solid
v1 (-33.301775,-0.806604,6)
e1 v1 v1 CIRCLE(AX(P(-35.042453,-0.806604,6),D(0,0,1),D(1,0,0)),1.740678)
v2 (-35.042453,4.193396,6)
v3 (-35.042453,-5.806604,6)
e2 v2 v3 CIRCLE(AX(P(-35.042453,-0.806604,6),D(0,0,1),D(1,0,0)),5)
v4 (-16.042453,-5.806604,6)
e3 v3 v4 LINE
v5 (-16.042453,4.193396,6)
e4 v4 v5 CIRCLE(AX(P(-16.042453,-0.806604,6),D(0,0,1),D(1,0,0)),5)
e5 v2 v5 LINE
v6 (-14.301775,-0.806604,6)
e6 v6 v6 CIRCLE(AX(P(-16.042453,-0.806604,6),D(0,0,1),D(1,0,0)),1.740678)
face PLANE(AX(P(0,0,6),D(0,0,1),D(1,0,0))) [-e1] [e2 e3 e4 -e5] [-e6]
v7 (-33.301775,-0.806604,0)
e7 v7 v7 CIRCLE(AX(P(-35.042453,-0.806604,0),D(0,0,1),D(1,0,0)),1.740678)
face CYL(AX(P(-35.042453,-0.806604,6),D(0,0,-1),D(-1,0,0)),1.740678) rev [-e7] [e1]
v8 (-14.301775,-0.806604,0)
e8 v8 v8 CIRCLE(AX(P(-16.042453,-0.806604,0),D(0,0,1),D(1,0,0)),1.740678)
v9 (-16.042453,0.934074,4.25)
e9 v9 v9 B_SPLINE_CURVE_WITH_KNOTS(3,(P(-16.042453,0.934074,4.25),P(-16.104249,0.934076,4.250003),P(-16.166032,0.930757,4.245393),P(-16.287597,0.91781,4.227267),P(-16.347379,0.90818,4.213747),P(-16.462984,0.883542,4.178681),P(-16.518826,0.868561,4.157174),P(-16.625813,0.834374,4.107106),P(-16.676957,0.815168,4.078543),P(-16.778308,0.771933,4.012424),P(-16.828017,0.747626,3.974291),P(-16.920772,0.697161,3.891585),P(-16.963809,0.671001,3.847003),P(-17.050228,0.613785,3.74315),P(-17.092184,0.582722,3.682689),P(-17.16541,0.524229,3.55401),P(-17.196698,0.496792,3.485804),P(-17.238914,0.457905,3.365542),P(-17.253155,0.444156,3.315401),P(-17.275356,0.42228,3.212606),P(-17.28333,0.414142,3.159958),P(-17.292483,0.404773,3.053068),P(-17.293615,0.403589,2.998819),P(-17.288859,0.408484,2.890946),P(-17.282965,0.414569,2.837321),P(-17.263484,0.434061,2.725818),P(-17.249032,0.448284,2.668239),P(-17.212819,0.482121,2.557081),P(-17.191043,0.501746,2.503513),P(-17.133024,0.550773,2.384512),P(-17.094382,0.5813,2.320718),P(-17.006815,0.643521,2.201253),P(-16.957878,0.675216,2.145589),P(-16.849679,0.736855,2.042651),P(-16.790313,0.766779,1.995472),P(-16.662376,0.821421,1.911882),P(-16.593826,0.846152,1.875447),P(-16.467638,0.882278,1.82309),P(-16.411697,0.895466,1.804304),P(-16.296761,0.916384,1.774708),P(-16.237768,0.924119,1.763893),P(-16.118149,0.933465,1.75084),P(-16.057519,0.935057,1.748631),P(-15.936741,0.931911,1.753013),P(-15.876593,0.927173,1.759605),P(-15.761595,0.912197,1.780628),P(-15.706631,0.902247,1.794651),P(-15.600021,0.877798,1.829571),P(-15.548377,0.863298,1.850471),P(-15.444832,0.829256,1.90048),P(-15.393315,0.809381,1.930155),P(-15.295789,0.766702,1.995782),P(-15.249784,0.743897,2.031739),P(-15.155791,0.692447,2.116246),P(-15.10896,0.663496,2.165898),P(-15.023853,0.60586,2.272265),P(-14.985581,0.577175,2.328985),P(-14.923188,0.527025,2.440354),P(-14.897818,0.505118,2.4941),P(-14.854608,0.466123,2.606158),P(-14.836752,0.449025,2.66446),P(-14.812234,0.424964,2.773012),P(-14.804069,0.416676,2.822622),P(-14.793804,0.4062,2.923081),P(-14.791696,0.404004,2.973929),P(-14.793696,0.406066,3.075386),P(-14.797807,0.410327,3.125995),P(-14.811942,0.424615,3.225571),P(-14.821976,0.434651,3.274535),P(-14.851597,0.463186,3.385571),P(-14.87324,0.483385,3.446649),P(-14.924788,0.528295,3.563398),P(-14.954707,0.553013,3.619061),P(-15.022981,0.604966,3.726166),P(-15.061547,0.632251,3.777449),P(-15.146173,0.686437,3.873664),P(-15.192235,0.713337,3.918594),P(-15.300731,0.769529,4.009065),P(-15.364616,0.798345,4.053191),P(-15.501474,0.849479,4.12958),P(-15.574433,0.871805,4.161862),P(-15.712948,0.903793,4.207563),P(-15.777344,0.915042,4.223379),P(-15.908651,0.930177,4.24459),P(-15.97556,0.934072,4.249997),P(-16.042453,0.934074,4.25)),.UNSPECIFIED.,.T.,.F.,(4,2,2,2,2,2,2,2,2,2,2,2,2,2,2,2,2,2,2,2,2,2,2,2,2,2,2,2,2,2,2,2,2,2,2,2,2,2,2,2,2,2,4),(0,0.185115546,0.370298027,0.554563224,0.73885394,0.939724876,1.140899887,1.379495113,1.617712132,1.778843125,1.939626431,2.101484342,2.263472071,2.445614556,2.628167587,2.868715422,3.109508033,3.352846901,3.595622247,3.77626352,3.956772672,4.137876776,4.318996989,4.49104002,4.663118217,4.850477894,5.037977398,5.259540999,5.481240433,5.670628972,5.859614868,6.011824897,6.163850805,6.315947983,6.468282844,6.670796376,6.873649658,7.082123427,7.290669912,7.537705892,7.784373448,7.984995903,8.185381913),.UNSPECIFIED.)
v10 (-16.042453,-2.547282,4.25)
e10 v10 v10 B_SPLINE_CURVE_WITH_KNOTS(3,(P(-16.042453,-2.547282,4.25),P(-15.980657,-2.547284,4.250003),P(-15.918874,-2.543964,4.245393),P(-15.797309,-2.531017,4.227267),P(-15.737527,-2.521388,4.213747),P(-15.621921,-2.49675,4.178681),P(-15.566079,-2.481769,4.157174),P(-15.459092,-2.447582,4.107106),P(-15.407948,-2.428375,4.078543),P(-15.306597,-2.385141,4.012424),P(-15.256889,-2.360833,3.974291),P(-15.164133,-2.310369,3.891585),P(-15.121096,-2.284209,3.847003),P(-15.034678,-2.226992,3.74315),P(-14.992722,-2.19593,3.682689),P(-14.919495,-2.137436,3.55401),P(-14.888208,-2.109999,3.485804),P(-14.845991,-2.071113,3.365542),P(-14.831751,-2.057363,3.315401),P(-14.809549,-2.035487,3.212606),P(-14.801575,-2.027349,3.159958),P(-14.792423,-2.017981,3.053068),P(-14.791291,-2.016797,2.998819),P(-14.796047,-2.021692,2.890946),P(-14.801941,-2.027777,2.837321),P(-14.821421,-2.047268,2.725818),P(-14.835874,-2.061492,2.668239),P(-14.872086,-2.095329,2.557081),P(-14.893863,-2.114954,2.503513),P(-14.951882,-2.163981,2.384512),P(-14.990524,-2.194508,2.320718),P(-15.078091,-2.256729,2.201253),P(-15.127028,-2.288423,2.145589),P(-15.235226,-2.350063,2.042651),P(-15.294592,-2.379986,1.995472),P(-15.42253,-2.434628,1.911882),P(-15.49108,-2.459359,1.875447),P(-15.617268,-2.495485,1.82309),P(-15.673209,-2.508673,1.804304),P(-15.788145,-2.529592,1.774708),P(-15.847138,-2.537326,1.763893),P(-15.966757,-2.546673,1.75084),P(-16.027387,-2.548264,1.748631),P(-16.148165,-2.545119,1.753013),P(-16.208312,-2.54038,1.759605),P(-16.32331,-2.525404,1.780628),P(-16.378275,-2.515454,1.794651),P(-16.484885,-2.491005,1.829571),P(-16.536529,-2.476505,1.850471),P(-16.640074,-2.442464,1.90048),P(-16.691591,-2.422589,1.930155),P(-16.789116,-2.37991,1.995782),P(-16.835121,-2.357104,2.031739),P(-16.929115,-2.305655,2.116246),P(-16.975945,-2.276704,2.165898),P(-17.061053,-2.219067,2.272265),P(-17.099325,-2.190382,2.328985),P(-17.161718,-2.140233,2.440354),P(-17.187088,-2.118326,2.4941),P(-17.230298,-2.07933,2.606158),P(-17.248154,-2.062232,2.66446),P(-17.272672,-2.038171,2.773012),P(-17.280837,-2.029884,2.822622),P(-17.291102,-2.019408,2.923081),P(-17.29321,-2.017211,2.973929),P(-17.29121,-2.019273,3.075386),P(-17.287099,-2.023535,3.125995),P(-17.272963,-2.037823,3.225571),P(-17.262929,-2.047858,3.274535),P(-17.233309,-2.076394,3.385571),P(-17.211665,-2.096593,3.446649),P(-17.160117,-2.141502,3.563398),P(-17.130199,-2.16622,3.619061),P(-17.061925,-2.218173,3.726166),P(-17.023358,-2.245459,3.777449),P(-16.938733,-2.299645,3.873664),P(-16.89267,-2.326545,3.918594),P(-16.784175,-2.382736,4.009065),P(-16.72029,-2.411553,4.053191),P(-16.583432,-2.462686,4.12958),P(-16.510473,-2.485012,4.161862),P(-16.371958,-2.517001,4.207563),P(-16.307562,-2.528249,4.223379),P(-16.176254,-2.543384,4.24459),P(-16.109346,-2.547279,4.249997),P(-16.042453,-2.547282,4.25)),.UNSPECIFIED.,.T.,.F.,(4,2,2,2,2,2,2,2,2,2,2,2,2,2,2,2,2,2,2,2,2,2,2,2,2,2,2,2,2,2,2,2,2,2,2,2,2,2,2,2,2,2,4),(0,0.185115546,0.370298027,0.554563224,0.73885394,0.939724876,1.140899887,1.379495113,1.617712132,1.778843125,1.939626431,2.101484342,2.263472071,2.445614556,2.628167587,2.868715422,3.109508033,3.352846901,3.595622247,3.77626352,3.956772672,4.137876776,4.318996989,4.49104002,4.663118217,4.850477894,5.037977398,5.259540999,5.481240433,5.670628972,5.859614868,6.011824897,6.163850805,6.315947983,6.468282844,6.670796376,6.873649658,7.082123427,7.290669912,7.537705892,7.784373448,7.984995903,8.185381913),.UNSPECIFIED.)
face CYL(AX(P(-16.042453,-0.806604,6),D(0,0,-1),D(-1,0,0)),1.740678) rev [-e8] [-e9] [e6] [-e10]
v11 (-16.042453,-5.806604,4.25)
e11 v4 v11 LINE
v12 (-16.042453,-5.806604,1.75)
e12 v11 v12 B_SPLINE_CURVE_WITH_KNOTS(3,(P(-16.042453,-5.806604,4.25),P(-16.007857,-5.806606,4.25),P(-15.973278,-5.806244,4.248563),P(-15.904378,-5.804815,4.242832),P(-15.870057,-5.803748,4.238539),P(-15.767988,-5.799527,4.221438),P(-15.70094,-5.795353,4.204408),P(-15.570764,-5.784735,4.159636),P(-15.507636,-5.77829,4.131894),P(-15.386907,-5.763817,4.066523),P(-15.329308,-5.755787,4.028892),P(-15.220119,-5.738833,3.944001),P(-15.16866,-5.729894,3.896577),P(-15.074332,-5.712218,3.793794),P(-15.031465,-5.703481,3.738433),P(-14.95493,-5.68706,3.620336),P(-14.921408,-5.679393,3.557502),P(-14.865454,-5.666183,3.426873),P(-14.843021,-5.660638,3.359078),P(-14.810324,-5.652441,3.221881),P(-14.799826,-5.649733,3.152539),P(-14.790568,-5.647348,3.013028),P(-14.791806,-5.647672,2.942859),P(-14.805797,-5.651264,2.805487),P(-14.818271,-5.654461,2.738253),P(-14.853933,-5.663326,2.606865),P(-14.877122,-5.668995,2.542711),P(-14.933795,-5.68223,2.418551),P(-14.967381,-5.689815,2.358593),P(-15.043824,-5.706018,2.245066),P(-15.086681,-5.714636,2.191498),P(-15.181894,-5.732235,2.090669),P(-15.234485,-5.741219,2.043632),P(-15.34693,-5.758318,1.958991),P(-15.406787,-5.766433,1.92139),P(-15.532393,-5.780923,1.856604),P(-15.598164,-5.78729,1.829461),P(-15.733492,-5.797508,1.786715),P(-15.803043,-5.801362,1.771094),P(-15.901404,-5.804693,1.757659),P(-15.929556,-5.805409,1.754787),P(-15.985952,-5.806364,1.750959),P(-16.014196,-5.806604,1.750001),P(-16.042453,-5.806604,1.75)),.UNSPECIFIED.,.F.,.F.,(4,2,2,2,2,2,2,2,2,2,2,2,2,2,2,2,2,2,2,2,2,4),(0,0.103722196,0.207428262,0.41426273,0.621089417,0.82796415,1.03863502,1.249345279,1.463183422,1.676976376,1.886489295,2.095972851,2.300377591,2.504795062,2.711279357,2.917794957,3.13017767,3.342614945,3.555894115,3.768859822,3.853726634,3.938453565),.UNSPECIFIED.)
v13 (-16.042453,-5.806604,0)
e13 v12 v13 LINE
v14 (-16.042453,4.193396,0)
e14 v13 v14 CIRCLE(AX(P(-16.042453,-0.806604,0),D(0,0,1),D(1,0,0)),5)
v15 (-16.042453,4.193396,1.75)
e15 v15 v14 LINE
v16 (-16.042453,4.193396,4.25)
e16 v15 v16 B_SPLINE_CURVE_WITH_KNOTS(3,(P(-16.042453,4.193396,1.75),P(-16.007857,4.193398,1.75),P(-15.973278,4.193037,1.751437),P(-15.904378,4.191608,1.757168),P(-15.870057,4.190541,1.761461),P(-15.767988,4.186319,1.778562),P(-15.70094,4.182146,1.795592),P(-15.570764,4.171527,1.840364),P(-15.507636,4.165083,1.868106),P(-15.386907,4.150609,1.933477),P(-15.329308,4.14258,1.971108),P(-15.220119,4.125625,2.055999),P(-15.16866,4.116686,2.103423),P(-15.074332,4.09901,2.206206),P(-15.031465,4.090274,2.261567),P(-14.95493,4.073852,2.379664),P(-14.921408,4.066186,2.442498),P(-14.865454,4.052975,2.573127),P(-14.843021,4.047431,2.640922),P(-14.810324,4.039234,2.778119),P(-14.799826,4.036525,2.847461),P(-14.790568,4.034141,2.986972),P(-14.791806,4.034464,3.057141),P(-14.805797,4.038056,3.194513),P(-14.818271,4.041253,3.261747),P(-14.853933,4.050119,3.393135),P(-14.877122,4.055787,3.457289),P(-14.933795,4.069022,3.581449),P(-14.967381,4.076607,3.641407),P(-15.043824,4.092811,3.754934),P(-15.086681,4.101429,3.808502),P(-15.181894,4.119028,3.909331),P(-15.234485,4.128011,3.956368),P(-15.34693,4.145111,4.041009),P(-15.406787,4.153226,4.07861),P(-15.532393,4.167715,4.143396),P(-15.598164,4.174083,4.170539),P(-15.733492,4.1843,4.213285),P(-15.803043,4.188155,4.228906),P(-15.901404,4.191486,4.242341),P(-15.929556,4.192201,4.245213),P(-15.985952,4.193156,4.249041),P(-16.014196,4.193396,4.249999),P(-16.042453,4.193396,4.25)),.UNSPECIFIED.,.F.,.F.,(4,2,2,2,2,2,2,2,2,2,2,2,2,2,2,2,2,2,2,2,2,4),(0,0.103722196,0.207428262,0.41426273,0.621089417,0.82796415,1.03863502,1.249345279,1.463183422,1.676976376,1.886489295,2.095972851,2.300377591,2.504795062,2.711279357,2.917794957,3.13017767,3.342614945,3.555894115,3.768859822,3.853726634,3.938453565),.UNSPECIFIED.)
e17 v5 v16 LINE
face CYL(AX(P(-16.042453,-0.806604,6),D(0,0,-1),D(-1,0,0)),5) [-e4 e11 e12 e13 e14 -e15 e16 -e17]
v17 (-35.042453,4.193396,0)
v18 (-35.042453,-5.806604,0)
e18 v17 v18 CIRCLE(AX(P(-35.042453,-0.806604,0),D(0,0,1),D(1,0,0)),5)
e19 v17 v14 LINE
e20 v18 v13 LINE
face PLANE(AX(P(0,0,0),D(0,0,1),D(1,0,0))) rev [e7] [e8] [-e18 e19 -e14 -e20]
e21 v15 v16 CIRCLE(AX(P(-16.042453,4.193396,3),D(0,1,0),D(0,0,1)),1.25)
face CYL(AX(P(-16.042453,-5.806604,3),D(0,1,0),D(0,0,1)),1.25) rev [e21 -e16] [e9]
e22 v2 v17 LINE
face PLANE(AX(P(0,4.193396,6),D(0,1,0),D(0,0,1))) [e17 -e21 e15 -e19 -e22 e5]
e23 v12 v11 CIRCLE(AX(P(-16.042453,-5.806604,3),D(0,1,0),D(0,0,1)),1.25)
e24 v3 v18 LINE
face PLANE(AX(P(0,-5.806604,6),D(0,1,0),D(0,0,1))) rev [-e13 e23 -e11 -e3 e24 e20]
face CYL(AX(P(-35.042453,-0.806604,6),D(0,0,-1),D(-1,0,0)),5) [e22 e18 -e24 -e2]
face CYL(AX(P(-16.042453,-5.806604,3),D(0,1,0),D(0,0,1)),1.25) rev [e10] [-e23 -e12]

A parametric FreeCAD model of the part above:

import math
import FreeCAD as App
import Part
import Sketcher

doc = App.newDocument("Part")
params = doc.addObject("Spreadsheet::Sheet", "Params")
for row, (alias, value) in enumerate([
    ("sketch1_radius", "5 mm"),
    ("sketch1_width", "19 mm"),
    ("pad1_length", "6 mm"),
    ("sketch2_diameter", "2.5 mm"),
], start=1):
    params.set(f"A{row}", alias)
    params.set(f"B{row}", "=" + value)
    params.setAlias(f"B{row}", alias)

body = doc.addObject("PartDesign::Body", "Body")

# Sketch on XY plane
sketch1 = body.newObject("Sketcher::SketchObject", "Sketch")
sketch1.AttachmentSupport = (doc.getObject("XY_Plane"), [""])
sketch1.MapMode = "FlatFace"
sketch1.addGeometry([
    Part.ArcOfCircle(Part.Circle(App.Vector(-35.042453, -0.806604, 0), App.Vector(0, 0, 1), 5), math.radians(90), math.radians(270)),  # 0
    Part.LineSegment(App.Vector(-35.042453, -5.806604, 0), App.Vector(-16.042453, -5.806604, 0)),  # 1
    Part.ArcOfCircle(Part.Circle(App.Vector(-16.042453, -0.806604, 0), App.Vector(0, 0, 1), 5), math.radians(-90), math.radians(90)),  # 2
    Part.LineSegment(App.Vector(-16.042453, 4.193396, 0), App.Vector(-35.042453, 4.193396, 0)),  # 3
    Part.Circle(App.Vector(-35.042453, -0.806604, 0), App.Vector(0, 0, 1), 1.740678),  # 4
    Part.Circle(App.Vector(-16.042453, -0.806604, 0), App.Vector(0, 0, 1), 1.740678),  # 5
], False)
sketch1.addConstraint([
    Sketcher.Constraint("Tangent", 0, 2, 1, 1),
    Sketcher.Constraint("Tangent", 1, 2, 2, 1),
    Sketcher.Constraint("Tangent", 2, 2, 3, 1),
    Sketcher.Constraint("Tangent", 3, 2, 0, 1),
    Sketcher.Constraint("Horizontal", 1),
    Sketcher.Constraint("Horizontal", 3),
    Sketcher.Constraint("Coincident", 4, 3, 0, 3),
    Sketcher.Constraint("Coincident", 5, 3, 2, 3),
    Sketcher.Constraint("Equal", 4, 5),
    Sketcher.Constraint("Radius", 0, 5.0),
    Sketcher.Constraint("DistanceX", 1, 1, 1, 2, 19.0),
    Sketcher.Constraint("Diameter", 4, 3.481356),
    Sketcher.Constraint("DistanceX", 0, 3, -1, 1, 35.042453),
    Sketcher.Constraint("DistanceY", 0, 3, -1, 1, 0.806604),
])
sketch1.setExpression("Constraints[9]", "Params.sketch1_radius")
sketch1.setExpression("Constraints[10]", "Params.sketch1_width")
pad1 = body.newObject("PartDesign::Pad", "Pad")
pad1.Profile = sketch1
pad1.setExpression("Length", "Params.pad1_length")

# Sketch on XZ plane
sketch2 = body.newObject("Sketcher::SketchObject", "Sketch001")
sketch2.AttachmentSupport = (doc.getObject("XZ_Plane"), [""])
sketch2.MapMode = "FlatFace"
sketch2.AttachmentOffset = App.Placement(App.Vector(0, 0, -4.193396), App.Rotation())
sketch2.addGeometry(Part.Circle(App.Vector(-16.042453, 3, 0), App.Vector(0, 0, 1), 1.25), False)
sketch2.addConstraint([
    Sketcher.Constraint("Diameter", 0, 2.5),
    Sketcher.Constraint("DistanceY", -1, 1, 0, 3, 3.0),
    Sketcher.Constraint("DistanceX", 0, 3, -1, 1, 16.042453),
])
sketch2.setExpression("Constraints[0]", "Params.sketch2_diameter")
pocket1 = body.newObject("PartDesign::Pocket", "Pocket")
pocket1.Profile = sketch2
pocket1.Type = "ThroughAll"
pocket1.Reversed = True

doc.recompute()
